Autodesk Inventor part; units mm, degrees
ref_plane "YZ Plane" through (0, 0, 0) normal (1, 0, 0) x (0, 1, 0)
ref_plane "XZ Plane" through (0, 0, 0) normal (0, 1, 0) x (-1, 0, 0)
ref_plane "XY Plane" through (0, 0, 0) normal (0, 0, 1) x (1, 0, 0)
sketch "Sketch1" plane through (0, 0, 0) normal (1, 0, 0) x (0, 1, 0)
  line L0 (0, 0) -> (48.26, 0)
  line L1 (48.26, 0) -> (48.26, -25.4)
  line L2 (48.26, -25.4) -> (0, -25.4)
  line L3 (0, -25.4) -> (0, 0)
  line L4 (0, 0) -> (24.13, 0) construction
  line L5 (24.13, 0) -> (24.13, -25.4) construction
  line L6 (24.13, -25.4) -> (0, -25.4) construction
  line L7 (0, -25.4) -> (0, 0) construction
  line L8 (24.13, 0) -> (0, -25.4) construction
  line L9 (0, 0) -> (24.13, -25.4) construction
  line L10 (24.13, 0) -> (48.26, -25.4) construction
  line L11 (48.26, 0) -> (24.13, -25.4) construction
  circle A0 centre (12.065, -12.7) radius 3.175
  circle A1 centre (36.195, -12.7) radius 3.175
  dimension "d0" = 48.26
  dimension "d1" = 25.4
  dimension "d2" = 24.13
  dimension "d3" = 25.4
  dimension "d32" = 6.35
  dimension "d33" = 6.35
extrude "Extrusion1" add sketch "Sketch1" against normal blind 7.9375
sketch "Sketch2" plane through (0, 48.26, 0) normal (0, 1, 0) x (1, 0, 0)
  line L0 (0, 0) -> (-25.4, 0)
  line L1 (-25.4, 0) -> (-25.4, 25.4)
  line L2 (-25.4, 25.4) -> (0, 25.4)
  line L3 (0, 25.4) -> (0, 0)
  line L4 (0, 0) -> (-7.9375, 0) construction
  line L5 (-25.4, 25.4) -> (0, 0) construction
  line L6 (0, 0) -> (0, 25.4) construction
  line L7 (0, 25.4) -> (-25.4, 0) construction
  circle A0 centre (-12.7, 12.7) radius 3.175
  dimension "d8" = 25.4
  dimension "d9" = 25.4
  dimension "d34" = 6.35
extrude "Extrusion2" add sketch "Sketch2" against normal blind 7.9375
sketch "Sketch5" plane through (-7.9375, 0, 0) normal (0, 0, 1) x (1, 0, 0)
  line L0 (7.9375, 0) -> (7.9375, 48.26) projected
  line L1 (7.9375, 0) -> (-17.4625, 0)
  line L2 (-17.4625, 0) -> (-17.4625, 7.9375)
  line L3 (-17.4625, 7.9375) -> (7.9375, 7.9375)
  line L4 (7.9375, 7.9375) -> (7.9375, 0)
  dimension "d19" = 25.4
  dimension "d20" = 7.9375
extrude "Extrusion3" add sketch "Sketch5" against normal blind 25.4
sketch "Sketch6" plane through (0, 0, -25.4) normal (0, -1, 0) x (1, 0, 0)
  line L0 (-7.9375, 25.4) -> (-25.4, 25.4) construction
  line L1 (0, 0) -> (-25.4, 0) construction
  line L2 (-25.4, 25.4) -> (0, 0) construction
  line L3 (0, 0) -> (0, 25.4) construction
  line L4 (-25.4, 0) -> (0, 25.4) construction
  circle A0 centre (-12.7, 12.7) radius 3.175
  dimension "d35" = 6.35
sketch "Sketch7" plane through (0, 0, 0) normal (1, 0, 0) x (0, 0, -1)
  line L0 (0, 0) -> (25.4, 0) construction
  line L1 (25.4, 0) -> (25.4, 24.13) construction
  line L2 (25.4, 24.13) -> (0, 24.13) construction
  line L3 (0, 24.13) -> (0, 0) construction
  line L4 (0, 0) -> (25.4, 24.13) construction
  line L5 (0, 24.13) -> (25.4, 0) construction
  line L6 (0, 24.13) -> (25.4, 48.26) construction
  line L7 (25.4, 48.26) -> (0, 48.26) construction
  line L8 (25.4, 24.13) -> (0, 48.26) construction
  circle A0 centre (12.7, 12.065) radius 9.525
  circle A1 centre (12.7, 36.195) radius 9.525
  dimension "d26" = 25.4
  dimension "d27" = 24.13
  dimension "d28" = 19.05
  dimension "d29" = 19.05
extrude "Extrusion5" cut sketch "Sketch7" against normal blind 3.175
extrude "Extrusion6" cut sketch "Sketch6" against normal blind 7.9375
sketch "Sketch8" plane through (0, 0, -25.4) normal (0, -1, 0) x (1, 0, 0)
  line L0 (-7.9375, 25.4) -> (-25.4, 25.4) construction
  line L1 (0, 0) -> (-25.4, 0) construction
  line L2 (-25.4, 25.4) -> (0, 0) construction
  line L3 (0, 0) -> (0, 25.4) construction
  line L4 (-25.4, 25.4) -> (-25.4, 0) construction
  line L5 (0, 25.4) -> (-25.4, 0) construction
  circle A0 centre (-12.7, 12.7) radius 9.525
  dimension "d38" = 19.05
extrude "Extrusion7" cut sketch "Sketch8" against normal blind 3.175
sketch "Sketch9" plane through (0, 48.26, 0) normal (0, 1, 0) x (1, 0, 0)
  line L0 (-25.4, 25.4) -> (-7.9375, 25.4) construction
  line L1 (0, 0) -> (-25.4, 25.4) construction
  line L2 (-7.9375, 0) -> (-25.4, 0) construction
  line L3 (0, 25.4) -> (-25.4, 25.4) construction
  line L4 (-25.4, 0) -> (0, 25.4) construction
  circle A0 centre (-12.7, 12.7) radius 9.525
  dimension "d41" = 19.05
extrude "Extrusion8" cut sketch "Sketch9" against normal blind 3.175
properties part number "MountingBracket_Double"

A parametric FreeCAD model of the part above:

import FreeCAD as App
import Part
import Sketcher
Q = App.Units.Quantity


def add_polygon(sketch, points):
    """Adds a closed chain of lines whose ends are joined by coincident constraints."""
    first, n = sketch.GeometryCount, len(points)
    for a, b in zip(points, points[1:] + points[:1]):
        sketch.addGeometry(Part.LineSegment(App.Vector(*a, 0), App.Vector(*b, 0)), False)
    for i in range(n):
        sketch.addConstraint(Sketcher.Constraint("Coincident", first + i, 2, first + (i + 1) % n, 1))

doc = App.newDocument("Part")
body = doc.addObject("PartDesign::Body", "Body")

# Sketch on YZ plane
sketch1 = body.newObject("Sketcher::SketchObject", "Sketch")
sketch1.AttachmentSupport = (doc.getObject("YZ_Plane"), [""])
sketch1.MapMode = "FlatFace"
add_polygon(sketch1, [(48.3, 0), (0, 0), (0, -25.4), (48.3, -25.4)])  # lines 0-3
sketch1.addGeometry(Part.Circle(App.Vector(12.1, -12.7, 0), App.Vector(0, 0, 1), 3.2), False)  # 4
sketch1.addGeometry(Part.Circle(App.Vector(36.2, -12.7, 0), App.Vector(0, 0, 1), 3.2), False)  # 5
sketch1.addConstraint(Sketcher.Constraint("Horizontal", 0))
sketch1.addConstraint(Sketcher.Constraint("Vertical", 1))
sketch1.addConstraint(Sketcher.Constraint("Horizontal", 2))
sketch1.addConstraint(Sketcher.Constraint("Vertical", 3))
sketch1.addConstraint(Sketcher.Constraint("Coincident", 0, 2, -1, 1))
sketch1.addConstraint(Sketcher.Constraint("Equal", 4, 5))
sketch1.addConstraint(Sketcher.Constraint("Horizontal", 4, 3, 5, 3))
sketch1.addConstraint(Sketcher.Constraint("Diameter", 4, Q("0.25 in")))
sketch1.addConstraint(Sketcher.Constraint("DistanceY", 1, 2, 1, 1, Q("1 in")))
sketch1.addConstraint(Sketcher.Constraint("DistanceX", 0, 2, 0, 1, Q("1.9 in")))
sketch1.addConstraint(Sketcher.Constraint("DistanceX", 4, 3, 5, 3, Q("0.95 in")))
sketch1.addConstraint(Sketcher.Constraint("DistanceY", 4, 3, -1, 1, Q("0.5 in")))
sketch1.addConstraint(Sketcher.Constraint("DistanceX", -1, 1, 4, 3, Q("0.475 in")))
pad1 = body.newObject("PartDesign::Pad", "Pad")
pad1.Profile = sketch1
pad1.Length = Q("0.3125 in")
pad1.Reversed = True

# Sketch on XZ plane
sketch2 = body.newObject("Sketcher::SketchObject", "Sketch001")
sketch2.AttachmentSupport = (doc.getObject("XZ_Plane"), [""])
sketch2.MapMode = "FlatFace"
sketch2.AttachmentOffset = App.Placement(App.Vector(0, 0, -1.9 * 25.4), App.Rotation())
add_polygon(sketch2, [(-25.4, 0), (0, 0), (0, -25.4), (-25.4, -25.4)])  # lines 0-3
sketch2.addGeometry(Part.Circle(App.Vector(-12.7, -12.7, 0), App.Vector(0, 0, 1), 3.2), False)  # 4
sketch2.addConstraint(Sketcher.Constraint("Horizontal", 0))
sketch2.addConstraint(Sketcher.Constraint("Vertical", 1))
sketch2.addConstraint(Sketcher.Constraint("Horizontal", 2))
sketch2.addConstraint(Sketcher.Constraint("Vertical", 3))
sketch2.addConstraint(Sketcher.Constraint("Coincident", 0, 2, -1, 1))
sketch2.addConstraint(Sketcher.Constraint("Equal", 2, 1))
sketch2.addConstraint(Sketcher.Constraint("Diameter", 4, Q("0.25 in")))
sketch2.addConstraint(Sketcher.Constraint("DistanceX", 0, 1, 0, 2, Q("1 in")))
sketch2.addConstraint(Sketcher.Constraint("DistanceX", 4, 3, -1, 1, Q("0.5 in")))
sketch2.addConstraint(Sketcher.Constraint("DistanceY", 4, 3, -1, 1, Q("0.5 in")))
pad2 = body.newObject("PartDesign::Pad", "Pad001")
pad2.Profile = sketch2
pad2.Length = Q("0.3125 in")

# Sketch on XY plane
sketch3 = body.newObject("Sketcher::SketchObject", "Sketch002")
sketch3.AttachmentSupport = (doc.getObject("XY_Plane"), [""])
sketch3.MapMode = "FlatFace"
add_polygon(sketch3, [(-25, 0), (0, 0), (0, 8), (-25, 8)])  # lines 0-3
sketch3.addConstraint(Sketcher.Constraint("Horizontal", 0))
sketch3.addConstraint(Sketcher.Constraint("Vertical", 1))
sketch3.addConstraint(Sketcher.Constraint("Horizontal", 2))
sketch3.addConstraint(Sketcher.Constraint("Vertical", 3))
sketch3.addConstraint(Sketcher.Constraint("Coincident", 0, 2, -1, 1))
sketch3.addConstraint(Sketcher.Constraint("DistanceX", 0, 1, 0, 2, Q("1 in")))
sketch3.addConstraint(Sketcher.Constraint("DistanceY", 1, 1, 1, 2, Q("0.3125 in")))
pad3 = body.newObject("PartDesign::Pad", "Pad002")
pad3.Profile = sketch3
pad3.Length = Q("1 in")
pad3.Reversed = True

# Sketch on YZ plane
sketch4 = body.newObject("Sketcher::SketchObject", "Sketch003")
sketch4.AttachmentSupport = (doc.getObject("YZ_Plane"), [""])
sketch4.MapMode = "FlatFace"
sketch4.addGeometry(Part.Circle(App.Vector(12, -13, 0), App.Vector(0, 0, 1), 10), False)
sketch4.addGeometry(Part.Circle(App.Vector(36, -13, 0), App.Vector(0, 0, 1), 10), False)
sketch4.addConstraint(Sketcher.Constraint("Equal", 0, 1))
sketch4.addConstraint(Sketcher.Constraint("Horizontal", 0, 3, 1, 3))
sketch4.addConstraint(Sketcher.Constraint("Diameter", 0, Q("0.75 in")))
sketch4.addConstraint(Sketcher.Constraint("DistanceX", 0, 3, 1, 3, Q("0.95 in")))
sketch4.addConstraint(Sketcher.Constraint("DistanceY", 0, 3, -1, 1, Q("0.5 in")))
sketch4.addConstraint(Sketcher.Constraint("DistanceX", -1, 1, 0, 3, Q("0.475 in")))
pocket1 = body.newObject("PartDesign::Pocket", "Pocket")
pocket1.Profile = sketch4
pocket1.Length = Q("0.125 in")

# Sketch on XZ plane
sketch5 = body.newObject("Sketcher::SketchObject", "Sketch004")
sketch5.AttachmentSupport = (doc.getObject("XZ_Plane"), [""])
sketch5.MapMode = "FlatFace"
sketch5.addGeometry(Part.Circle(App.Vector(-12.7, -12.7, 0), App.Vector(0, 0, 1), 3.2), False)
sketch5.addConstraint(Sketcher.Constraint("Diameter", 0, Q("0.25 in")))
sketch5.addConstraint(Sketcher.Constraint("DistanceX", 0, 3, -1, 1, Q("0.5 in")))
sketch5.addConstraint(Sketcher.Constraint("DistanceY", 0, 3, -1, 1, Q("0.5 in")))
pocket2 = body.newObject("PartDesign::Pocket", "Pocket001")
pocket2.Profile = sketch5
pocket2.Length = Q("0.3125 in")

# Sketch on XZ plane
sketch6 = body.newObject("Sketcher::SketchObject", "Sketch005")
sketch6.AttachmentSupport = (doc.getObject("XZ_Plane"), [""])
sketch6.MapMode = "FlatFace"
sketch6.addGeometry(Part.Circle(App.Vector(-13, -13, 0), App.Vector(0, 0, 1), 10), False)
sketch6.addConstraint(Sketcher.Constraint("Diameter", 0, Q("0.75 in")))
sketch6.addConstraint(Sketcher.Constraint("DistanceX", 0, 3, -1, 1, Q("0.5 in")))
sketch6.addConstraint(Sketcher.Constraint("DistanceY", 0, 3, -1, 1, Q("0.5 in")))
pocket3 = body.newObject("PartDesign::Pocket", "Pocket002")
pocket3.Profile = sketch6
pocket3.Length = Q("0.125 in")

# Sketch on XZ plane
sketch7 = body.newObject("Sketcher::SketchObject", "Sketch006")
sketch7.AttachmentSupport = (doc.getObject("XZ_Plane"), [""])
sketch7.MapMode = "FlatFace"
sketch7.AttachmentOffset = App.Placement(App.Vector(0, 0, -1.9 * 25.4), App.Rotation())
sketch7.addGeometry(Part.Circle(App.Vector(-13, -13, 0), App.Vector(0, 0, 1), 10), False)
sketch7.addConstraint(Sketcher.Constraint("Diameter", 0, Q("0.75 in")))
sketch7.addConstraint(Sketcher.Constraint("DistanceX", 0, 3, -1, 1, Q("0.5 in")))
sketch7.addConstraint(Sketcher.Constraint("DistanceY", 0, 3, -1, 1, Q("0.5 in")))
pocket4 = body.newObject("PartDesign::Pocket", "Pocket003")
pocket4.Profile = sketch7
pocket4.Length = Q("0.125 in")
pocket4.Reversed = True

doc.recompute()
